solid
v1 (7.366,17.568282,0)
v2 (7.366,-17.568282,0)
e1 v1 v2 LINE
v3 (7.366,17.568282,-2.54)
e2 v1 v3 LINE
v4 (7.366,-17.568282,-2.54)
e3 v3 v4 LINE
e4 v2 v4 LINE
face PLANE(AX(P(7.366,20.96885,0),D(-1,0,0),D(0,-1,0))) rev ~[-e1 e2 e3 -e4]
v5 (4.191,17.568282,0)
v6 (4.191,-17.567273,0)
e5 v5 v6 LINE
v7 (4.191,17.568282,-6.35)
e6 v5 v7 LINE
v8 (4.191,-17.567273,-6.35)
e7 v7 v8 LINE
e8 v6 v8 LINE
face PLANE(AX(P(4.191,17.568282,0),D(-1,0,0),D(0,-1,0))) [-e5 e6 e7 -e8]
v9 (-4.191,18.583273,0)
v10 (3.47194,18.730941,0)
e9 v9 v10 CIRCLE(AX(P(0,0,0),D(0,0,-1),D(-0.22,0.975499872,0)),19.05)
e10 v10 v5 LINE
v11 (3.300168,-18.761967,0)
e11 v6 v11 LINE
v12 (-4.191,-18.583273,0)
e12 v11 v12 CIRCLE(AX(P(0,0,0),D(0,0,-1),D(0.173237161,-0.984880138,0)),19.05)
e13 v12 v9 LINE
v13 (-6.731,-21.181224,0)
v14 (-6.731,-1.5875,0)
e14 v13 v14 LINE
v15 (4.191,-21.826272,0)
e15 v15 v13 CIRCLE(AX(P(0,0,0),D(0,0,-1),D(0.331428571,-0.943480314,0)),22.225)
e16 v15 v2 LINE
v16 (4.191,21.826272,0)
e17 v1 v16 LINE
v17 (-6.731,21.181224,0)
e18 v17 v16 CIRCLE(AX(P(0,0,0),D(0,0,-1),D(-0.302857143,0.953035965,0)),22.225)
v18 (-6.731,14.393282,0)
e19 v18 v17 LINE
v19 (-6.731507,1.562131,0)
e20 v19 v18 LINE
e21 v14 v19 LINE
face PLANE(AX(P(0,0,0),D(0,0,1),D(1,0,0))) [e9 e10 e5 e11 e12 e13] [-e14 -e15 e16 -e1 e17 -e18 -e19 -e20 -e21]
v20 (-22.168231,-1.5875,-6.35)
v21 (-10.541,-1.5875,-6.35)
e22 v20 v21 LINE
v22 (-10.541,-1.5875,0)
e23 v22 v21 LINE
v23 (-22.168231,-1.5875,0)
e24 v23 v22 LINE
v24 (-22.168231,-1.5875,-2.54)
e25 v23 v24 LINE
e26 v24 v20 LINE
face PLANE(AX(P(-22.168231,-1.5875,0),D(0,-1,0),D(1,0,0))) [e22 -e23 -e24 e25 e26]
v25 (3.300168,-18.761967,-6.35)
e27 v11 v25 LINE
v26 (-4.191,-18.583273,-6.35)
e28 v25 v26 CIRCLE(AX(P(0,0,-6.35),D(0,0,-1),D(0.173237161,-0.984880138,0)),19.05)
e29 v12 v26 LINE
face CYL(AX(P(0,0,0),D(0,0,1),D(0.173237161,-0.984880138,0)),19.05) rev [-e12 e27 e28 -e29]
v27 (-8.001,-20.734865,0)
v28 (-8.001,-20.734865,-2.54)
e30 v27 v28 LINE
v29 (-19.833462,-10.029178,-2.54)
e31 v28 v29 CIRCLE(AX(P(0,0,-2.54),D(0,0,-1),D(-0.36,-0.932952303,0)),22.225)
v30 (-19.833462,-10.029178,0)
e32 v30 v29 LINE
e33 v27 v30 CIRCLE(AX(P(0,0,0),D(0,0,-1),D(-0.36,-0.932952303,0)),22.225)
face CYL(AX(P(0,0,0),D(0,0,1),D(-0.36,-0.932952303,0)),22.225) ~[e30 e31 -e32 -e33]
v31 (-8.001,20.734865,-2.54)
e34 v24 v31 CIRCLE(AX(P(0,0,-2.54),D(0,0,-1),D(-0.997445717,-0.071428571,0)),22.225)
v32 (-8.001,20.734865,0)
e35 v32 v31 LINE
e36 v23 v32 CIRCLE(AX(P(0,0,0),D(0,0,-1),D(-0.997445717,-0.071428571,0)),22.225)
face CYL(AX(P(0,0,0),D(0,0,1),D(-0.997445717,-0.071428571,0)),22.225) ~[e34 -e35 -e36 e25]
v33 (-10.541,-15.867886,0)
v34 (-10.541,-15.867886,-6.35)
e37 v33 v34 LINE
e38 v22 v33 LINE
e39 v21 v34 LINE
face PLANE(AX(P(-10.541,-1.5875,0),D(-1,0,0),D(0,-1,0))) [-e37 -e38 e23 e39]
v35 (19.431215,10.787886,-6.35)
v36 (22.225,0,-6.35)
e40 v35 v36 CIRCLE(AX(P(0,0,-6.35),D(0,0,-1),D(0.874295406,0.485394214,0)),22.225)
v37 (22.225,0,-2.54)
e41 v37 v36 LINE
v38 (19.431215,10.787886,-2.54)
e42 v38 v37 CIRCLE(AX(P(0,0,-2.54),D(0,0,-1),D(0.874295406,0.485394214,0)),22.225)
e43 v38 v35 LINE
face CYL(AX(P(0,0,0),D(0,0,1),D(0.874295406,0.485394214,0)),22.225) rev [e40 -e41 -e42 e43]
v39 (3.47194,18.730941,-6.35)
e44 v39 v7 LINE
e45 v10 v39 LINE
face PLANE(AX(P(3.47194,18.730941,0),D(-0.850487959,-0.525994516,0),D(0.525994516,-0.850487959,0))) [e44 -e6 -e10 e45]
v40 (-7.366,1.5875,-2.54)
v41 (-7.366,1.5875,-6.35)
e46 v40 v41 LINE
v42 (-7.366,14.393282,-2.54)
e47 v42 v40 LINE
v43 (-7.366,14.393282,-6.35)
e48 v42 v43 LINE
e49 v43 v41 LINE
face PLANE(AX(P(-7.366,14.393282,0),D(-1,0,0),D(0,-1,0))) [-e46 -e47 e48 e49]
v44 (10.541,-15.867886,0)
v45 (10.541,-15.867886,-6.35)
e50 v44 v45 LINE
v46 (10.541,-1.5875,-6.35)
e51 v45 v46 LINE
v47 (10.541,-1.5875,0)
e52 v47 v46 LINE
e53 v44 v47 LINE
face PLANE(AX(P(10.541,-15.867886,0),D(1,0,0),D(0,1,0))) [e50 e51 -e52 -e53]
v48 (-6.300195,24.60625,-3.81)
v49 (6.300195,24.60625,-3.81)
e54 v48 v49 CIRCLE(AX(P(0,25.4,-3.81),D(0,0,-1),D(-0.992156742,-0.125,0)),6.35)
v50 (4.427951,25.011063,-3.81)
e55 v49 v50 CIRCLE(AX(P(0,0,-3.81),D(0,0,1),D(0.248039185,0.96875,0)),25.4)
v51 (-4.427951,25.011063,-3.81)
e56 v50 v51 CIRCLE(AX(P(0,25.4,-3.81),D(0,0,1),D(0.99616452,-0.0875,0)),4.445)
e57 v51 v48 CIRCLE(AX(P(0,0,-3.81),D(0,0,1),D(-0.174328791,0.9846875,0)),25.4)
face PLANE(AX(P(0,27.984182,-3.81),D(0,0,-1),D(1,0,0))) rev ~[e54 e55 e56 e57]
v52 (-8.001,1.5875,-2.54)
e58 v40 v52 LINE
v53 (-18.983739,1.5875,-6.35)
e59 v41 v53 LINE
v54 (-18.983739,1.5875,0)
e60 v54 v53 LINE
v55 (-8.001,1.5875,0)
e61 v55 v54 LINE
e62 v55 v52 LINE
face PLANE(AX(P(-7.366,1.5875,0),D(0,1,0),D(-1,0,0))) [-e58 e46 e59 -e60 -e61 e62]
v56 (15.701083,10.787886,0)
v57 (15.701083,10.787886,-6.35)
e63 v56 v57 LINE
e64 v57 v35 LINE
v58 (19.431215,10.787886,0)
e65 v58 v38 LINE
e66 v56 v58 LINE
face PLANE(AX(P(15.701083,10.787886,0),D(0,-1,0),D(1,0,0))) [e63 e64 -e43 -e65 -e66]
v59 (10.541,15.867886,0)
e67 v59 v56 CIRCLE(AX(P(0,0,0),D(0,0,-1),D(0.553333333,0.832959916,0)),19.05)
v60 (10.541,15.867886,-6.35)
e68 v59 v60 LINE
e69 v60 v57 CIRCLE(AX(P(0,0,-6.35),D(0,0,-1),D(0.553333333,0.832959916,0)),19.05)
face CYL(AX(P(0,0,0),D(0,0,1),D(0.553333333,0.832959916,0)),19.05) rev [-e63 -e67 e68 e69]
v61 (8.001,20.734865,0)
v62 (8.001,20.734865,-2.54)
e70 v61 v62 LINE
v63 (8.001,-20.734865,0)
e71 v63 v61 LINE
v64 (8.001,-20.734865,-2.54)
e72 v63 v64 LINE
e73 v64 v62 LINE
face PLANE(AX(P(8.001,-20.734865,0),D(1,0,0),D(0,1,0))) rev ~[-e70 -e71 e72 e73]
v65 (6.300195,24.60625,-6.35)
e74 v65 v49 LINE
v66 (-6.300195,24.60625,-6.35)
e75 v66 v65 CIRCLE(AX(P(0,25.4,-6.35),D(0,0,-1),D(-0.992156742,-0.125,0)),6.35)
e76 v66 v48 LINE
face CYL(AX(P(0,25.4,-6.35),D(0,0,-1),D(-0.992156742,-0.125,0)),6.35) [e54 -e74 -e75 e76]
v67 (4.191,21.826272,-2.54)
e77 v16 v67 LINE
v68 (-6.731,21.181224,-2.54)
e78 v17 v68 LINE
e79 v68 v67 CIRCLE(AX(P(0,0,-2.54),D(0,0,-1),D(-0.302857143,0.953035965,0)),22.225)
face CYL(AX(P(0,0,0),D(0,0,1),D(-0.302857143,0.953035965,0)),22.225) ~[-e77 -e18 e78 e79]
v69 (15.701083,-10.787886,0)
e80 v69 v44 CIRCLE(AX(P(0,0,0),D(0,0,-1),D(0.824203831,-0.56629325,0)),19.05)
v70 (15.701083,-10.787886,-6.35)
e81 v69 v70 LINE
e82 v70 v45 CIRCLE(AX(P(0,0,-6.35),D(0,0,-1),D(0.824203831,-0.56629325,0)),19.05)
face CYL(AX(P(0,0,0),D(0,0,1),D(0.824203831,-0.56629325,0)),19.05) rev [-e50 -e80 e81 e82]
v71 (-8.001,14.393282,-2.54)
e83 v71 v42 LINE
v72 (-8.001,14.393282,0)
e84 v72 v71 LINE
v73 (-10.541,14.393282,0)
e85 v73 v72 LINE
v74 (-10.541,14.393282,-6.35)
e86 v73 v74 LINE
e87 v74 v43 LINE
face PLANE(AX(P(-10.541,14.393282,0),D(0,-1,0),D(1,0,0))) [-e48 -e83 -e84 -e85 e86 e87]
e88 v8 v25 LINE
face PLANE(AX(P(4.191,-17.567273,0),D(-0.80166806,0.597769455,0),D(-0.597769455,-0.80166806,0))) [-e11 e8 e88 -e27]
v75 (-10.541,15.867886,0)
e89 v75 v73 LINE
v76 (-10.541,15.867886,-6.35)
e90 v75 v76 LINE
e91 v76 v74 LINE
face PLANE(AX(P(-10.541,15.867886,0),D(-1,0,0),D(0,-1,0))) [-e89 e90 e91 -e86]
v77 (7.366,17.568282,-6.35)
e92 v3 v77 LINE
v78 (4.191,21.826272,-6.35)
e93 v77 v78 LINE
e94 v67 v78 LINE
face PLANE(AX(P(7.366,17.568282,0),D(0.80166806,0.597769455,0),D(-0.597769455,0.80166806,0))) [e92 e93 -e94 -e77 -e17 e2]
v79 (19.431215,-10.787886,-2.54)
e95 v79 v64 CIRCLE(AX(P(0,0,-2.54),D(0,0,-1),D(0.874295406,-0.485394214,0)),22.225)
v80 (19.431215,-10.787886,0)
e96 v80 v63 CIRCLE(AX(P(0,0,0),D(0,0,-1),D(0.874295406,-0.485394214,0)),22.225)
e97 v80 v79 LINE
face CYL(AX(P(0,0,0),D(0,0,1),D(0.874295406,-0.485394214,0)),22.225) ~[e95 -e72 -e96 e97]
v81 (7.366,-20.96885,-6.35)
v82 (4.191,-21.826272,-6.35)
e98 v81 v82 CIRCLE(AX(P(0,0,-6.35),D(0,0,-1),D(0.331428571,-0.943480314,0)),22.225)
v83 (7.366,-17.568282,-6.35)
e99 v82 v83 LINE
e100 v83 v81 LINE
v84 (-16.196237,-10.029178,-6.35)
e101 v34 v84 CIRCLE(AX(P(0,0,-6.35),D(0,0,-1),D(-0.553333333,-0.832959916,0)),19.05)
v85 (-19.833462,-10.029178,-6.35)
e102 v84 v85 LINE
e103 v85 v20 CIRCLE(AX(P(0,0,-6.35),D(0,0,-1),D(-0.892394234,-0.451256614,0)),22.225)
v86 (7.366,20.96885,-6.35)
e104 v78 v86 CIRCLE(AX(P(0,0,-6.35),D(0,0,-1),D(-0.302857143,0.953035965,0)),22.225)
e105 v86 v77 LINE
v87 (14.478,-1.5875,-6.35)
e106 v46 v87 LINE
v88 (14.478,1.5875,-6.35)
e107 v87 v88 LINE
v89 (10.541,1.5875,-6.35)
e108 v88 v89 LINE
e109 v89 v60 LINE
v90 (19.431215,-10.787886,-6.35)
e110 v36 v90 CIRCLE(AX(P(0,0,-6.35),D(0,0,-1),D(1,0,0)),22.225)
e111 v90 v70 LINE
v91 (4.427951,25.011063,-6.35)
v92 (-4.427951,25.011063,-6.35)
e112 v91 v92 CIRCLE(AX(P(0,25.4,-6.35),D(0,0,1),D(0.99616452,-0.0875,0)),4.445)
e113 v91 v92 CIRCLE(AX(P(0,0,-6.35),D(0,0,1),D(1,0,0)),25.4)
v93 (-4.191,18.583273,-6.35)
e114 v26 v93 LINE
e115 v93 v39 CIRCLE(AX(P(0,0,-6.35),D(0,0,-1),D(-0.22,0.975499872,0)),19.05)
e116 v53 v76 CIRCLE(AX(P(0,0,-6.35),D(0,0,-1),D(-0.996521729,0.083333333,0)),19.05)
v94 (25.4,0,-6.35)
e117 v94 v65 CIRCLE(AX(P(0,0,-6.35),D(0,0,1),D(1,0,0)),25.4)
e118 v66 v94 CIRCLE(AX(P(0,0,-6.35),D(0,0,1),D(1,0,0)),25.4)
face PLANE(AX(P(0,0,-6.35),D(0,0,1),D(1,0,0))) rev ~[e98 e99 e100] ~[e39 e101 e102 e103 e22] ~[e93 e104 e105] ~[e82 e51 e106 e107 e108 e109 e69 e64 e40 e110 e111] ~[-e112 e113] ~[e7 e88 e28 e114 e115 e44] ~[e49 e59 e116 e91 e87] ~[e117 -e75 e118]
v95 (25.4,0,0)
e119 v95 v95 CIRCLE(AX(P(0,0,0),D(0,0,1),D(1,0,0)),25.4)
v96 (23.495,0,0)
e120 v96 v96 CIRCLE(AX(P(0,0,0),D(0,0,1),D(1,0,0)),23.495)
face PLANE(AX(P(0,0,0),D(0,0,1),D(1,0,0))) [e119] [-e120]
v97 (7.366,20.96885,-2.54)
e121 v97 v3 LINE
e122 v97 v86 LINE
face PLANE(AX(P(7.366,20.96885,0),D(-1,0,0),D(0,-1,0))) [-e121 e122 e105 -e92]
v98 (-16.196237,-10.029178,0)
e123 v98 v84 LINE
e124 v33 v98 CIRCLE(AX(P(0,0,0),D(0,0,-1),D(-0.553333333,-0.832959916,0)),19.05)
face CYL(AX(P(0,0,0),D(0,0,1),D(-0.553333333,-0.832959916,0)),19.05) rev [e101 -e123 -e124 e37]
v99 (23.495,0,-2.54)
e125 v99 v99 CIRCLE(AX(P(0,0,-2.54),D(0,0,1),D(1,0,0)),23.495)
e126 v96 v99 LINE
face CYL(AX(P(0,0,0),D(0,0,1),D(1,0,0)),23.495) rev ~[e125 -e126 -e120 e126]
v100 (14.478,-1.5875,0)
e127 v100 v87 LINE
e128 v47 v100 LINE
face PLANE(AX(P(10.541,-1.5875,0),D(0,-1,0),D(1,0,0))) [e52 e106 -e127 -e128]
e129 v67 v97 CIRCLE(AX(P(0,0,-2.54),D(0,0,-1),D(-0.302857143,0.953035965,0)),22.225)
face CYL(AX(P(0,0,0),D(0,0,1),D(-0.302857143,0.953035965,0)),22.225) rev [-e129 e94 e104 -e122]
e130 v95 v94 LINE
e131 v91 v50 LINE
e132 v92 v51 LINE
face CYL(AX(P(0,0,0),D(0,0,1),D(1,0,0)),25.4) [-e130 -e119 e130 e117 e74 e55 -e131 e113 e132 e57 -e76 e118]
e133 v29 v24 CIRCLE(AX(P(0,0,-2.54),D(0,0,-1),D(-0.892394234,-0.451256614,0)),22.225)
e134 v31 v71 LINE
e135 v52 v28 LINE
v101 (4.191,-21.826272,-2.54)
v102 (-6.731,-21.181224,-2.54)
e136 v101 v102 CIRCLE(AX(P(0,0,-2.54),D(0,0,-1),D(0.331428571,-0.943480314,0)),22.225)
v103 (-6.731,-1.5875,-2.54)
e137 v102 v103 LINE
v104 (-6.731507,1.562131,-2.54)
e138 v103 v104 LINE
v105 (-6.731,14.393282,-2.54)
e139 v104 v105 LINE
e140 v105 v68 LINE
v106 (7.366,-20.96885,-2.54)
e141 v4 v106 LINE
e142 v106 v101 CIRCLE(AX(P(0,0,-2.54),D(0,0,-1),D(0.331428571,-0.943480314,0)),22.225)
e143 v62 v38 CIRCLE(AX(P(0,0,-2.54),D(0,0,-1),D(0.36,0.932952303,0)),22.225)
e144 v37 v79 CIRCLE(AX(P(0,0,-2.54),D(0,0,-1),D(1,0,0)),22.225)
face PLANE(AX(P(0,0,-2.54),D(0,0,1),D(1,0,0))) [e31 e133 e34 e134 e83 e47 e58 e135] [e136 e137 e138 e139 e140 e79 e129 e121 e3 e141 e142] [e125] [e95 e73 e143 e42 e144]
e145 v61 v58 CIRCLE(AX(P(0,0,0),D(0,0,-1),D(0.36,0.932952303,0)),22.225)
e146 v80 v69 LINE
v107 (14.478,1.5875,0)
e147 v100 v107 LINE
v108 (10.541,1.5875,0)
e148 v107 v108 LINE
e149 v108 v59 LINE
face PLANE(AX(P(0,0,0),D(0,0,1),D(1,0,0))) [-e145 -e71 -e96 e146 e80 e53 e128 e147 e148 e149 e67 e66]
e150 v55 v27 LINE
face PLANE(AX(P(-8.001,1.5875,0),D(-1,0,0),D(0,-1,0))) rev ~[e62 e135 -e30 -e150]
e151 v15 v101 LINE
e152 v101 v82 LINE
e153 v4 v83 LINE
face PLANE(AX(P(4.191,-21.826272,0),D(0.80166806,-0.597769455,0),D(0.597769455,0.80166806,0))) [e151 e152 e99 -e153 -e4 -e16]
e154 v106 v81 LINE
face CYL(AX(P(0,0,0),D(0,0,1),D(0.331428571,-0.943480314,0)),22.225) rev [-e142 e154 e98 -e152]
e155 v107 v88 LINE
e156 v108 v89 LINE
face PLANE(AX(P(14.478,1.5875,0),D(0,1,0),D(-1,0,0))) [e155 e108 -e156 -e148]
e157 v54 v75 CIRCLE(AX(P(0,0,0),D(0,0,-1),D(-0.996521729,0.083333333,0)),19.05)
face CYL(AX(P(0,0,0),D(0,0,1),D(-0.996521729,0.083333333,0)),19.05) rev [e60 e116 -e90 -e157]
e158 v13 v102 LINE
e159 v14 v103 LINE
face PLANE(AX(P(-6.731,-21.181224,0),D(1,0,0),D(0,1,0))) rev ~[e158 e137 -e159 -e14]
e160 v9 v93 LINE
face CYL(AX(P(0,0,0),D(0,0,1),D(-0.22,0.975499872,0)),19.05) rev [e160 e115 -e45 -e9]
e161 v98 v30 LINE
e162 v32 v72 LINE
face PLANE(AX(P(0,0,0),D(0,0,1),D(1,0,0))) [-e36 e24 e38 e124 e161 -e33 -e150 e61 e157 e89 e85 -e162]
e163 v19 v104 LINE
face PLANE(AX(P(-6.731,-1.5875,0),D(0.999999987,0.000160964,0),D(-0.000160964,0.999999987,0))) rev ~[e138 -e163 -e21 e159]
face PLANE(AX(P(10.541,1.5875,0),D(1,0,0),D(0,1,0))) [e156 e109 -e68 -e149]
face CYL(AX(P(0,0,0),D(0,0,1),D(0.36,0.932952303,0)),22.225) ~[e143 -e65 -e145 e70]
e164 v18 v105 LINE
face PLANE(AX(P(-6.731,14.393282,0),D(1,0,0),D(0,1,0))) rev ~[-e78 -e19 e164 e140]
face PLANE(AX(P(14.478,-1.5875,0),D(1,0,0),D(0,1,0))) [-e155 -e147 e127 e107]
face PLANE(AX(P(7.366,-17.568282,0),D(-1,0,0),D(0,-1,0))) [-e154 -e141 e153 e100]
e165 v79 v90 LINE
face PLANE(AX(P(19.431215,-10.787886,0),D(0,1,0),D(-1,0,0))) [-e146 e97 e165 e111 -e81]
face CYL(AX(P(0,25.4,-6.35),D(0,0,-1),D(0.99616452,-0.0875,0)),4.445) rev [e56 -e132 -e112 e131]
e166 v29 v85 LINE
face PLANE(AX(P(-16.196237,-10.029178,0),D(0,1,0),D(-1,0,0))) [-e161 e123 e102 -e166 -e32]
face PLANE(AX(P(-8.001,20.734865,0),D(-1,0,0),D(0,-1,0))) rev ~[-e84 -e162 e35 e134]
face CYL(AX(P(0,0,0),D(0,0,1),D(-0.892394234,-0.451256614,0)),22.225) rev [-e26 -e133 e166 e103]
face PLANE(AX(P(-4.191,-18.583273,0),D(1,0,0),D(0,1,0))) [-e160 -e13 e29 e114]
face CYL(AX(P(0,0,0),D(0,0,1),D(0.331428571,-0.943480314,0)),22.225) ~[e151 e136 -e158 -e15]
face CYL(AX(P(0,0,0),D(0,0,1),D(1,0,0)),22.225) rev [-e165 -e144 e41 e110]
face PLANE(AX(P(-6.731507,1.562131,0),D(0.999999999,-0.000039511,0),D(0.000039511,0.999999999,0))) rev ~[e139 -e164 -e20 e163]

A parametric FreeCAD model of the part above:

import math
import FreeCAD as App
import Part
import Sketcher
Q = App.Units.Quantity

doc = App.newDocument("Part")
params = doc.addObject("Spreadsheet::Sheet", "Params")
for row, (alias, value) in enumerate([
    ("sketch1_diameter", "2 in"),
    ("sketch1_radius", "0.75 in"),
    ("sketch1_radius2", "0.875 in"),
    ("sketch1_width", "0.125 in"),
    ("sketch1_width2", "0.155 in"),
    ("pad1_length", "0.25 in"),
    ("sketch2_diameter", "1.85 in"),
    ("sketch2_radius", "0.875 in"),
    ("sketch2_width", "0.025 in"),
    ("pocket1_length", "0.1 in"),
    ("sketch3_radius", "1 in"),
    ("sketch3_radius2", "0.25 in"),
    ("sketch3_radius3", "0.175 in"),
    ("pad2_length", "0.1 in"),
], start=1):
    params.set(f"A{row}", alias)
    params.set(f"B{row}", "=" + value)
    params.setAlias(f"B{row}", alias)

body = doc.addObject("PartDesign::Body", "Body")

sketch1 = body.newObject("Sketcher::SketchObject", "Sketch")
sketch1.AttachmentSupport = (doc.getObject("XY_Plane"), [""])
sketch1.MapMode = "FlatFace"
sketch1.addGeometry([
    Part.Circle(App.Vector(0, 0, 0), App.Vector(0, 0, 1), 25.4),
    Part.ArcOfCircle(Part.Circle(App.Vector(0, 0, 0), App.Vector(0, 0, 1), 19.1), math.radians(124), math.radians(175)),
    Part.LineSegment(App.Vector(-10.5, 15.9, 0), App.Vector(-10.5, 14.4, 0)),
    Part.LineSegment(App.Vector(-10.5, 14.4, 0), App.Vector(-7.4, 14.4, 0)),
    Part.LineSegment(App.Vector(-7.4, 14.4, 0), App.Vector(-7.4, 1.6, 0)),
    Part.LineSegment(App.Vector(-7.4, 1.6, 0), App.Vector(-19, 1.6, 0)),
    Part.ArcOfCircle(Part.Circle(App.Vector(0, 0, 0), App.Vector(0, 0, 1), 22.2), math.radians(-176), math.radians(-153)),
    Part.LineSegment(App.Vector(-22.2, -1.6, 0), App.Vector(-10.5, -1.6, 0)),
    Part.LineSegment(App.Vector(-10.5, -1.6, 0), App.Vector(-10.5, -15.9, 0)),
    Part.ArcOfCircle(Part.Circle(App.Vector(0, 0, 0), App.Vector(0, 0, 1), 19.1), math.radians(-148), math.radians(-124)),
    Part.LineSegment(App.Vector(-16.2, -10, 0), App.Vector(-19.8, -10, 0)),
    Part.LineSegment(App.Vector(-4.2, -18.6, 0), App.Vector(-4.2, 18.6, 0)),
    Part.ArcOfCircle(Part.Circle(App.Vector(0, 0, 0), App.Vector(0, 0, 1), 19), math.radians(79), math.radians(103)),
    Part.LineSegment(App.Vector(3.5, 18.7, 0), App.Vector(4.2, 17.6, 0)),
    Part.LineSegment(App.Vector(4.2, 17.6, 0), App.Vector(4.2, -17.6, 0)),
    Part.LineSegment(App.Vector(4.2, -17.6, 0), App.Vector(3.3, -18.8, 0)),
    Part.ArcOfCircle(Part.Circle(App.Vector(0, 0, 0), App.Vector(0, 0, 1), 19), math.radians(-103), math.radians(-80)),
    Part.ArcOfCircle(Part.Circle(App.Vector(0, 0, 0), App.Vector(0, 0, 1), 22.2), math.radians(0), math.radians(29)),
    Part.ArcOfCircle(Part.Circle(App.Vector(0, 0, 0), App.Vector(0, 0, 1), 22.2), math.radians(-29), math.radians(0)),
    Part.LineSegment(App.Vector(19.4, -10.8, 0), App.Vector(15.7, -10.8, 0)),
    Part.ArcOfCircle(Part.Circle(App.Vector(0, 0, 0), App.Vector(0, 0, 1), 19.1), math.radians(-56), math.radians(-34)),
    Part.LineSegment(App.Vector(10.5, -15.9, 0), App.Vector(10.5, -1.6, 0)),
    Part.LineSegment(App.Vector(10.5, -1.6, 0), App.Vector(14.5, -1.6, 0)),
    Part.LineSegment(App.Vector(14.5, -1.6, 0), App.Vector(14.5, 1.6, 0)),
    Part.LineSegment(App.Vector(14.5, 1.6, 0), App.Vector(10.5, 1.6, 0)),
    Part.LineSegment(App.Vector(10.5, 1.6, 0), App.Vector(10.5, 15.9, 0)),
    Part.ArcOfCircle(Part.Circle(App.Vector(0, 0, 0), App.Vector(0, 0, 1), 19.1), math.radians(34), math.radians(56)),
    Part.LineSegment(App.Vector(15.7, 10.8, 0), App.Vector(19.4, 10.8, 0)),
    Part.ArcOfCircle(Part.Circle(App.Vector(0, 0, 0), App.Vector(0, 0, 1), 22.2), math.radians(-79.13), math.radians(-70.64)),
    Part.LineSegment(App.Vector(4.2, -21.8, 0), App.Vector(7.4, -17.6, 0)),
    Part.LineSegment(App.Vector(7.4, -17.6, 0), App.Vector(7.4, -21, 0)),
    Part.LineSegment(App.Vector(7.4, 17.6, 0), App.Vector(4.2, 21.8, 0)),
    Part.ArcOfCircle(Part.Circle(App.Vector(0, 0, 0), App.Vector(0, 0, 1), 22.2), math.radians(70.64), math.radians(79.13)),
    Part.LineSegment(App.Vector(7.4, 21, 0), App.Vector(7.4, 17.6, 0)),
], False)
sketch1.addConstraint([
    Sketcher.Constraint("Coincident", 1, 1, 2, 1),
    Sketcher.Constraint("Coincident", 2, 2, 3, 1),
    Sketcher.Constraint("Coincident", 3, 2, 4, 1),
    Sketcher.Constraint("Coincident", 4, 2, 5, 1),
    Sketcher.Constraint("Coincident", 5, 2, 1, 2),
    Sketcher.Constraint("Coincident", 6, 1, 7, 1),
    Sketcher.Constraint("Coincident", 7, 2, 8, 1),
    Sketcher.Constraint("Coincident", 8, 2, 9, 2),
    Sketcher.Constraint("Coincident", 9, 1, 10, 1),
    Sketcher.Constraint("Coincident", 10, 2, 6, 2),
    Sketcher.Constraint("Coincident", 11, 2, 12, 2),
    Sketcher.Constraint("Coincident", 12, 1, 13, 1),
    Sketcher.Constraint("Coincident", 13, 2, 14, 1),
    Sketcher.Constraint("Coincident", 14, 2, 15, 1),
    Sketcher.Constraint("Coincident", 15, 2, 16, 2),
    Sketcher.Constraint("Coincident", 16, 1, 11, 1),
    Sketcher.Constraint("Tangent", 17, 1, 18, 2),
    Sketcher.Constraint("Coincident", 18, 1, 19, 1),
    Sketcher.Constraint("Coincident", 19, 2, 20, 2),
    Sketcher.Constraint("Coincident", 20, 1, 21, 1),
    Sketcher.Constraint("Coincident", 21, 2, 22, 1),
    Sketcher.Constraint("Coincident", 22, 2, 23, 1),
    Sketcher.Constraint("Coincident", 23, 2, 24, 1),
    Sketcher.Constraint("Coincident", 24, 2, 25, 1),
    Sketcher.Constraint("Coincident", 25, 2, 26, 2),
    Sketcher.Constraint("Coincident", 26, 1, 27, 1),
    Sketcher.Constraint("Coincident", 27, 2, 17, 2),
    Sketcher.Constraint("Coincident", 28, 1, 29, 1),
    Sketcher.Constraint("Coincident", 29, 2, 30, 1),
    Sketcher.Constraint("Coincident", 30, 2, 28, 2),
    Sketcher.Constraint("Coincident", 31, 2, 32, 2),
    Sketcher.Constraint("Coincident", 32, 1, 33, 1),
    Sketcher.Constraint("Coincident", 33, 2, 31, 1),
    Sketcher.Constraint("Vertical", 2),
    Sketcher.Constraint("Horizontal", 3),
    Sketcher.Constraint("Vertical", 4),
    Sketcher.Constraint("Horizontal", 5),
    Sketcher.Constraint("Horizontal", 7),
    Sketcher.Constraint("Vertical", 8),
    Sketcher.Constraint("Horizontal", 10),
    Sketcher.Constraint("Vertical", 11),
    Sketcher.Constraint("Vertical", 14),
    Sketcher.Constraint("Horizontal", 19),
    Sketcher.Constraint("Vertical", 21),
    Sketcher.Constraint("Horizontal", 22),
    Sketcher.Constraint("Vertical", 23),
    Sketcher.Constraint("Horizontal", 24),
    Sketcher.Constraint("Vertical", 25),
    Sketcher.Constraint("Horizontal", 27),
    Sketcher.Constraint("Vertical", 30),
    Sketcher.Constraint("Vertical", 33),
    Sketcher.Constraint("Coincident", 0, 3, -1, 1),
    Sketcher.Constraint("Coincident", 1, 3, -1, 1),
    Sketcher.Constraint("Coincident", 6, 3, -1, 1),
    Sketcher.Constraint("Coincident", 9, 3, -1, 1),
    Sketcher.Constraint("Coincident", 12, 3, -1, 1),
    Sketcher.Constraint("Coincident", 16, 3, -1, 1),
    Sketcher.Constraint("Coincident", 17, 3, -1, 1),
    Sketcher.Constraint("Coincident", 20, 3, -1, 1),
    Sketcher.Constraint("Coincident", 26, 3, -1, 1),
    Sketcher.Constraint("Coincident", 28, 3, -1, 1),
    Sketcher.Constraint("Coincident", 32, 3, -1, 1),
    Sketcher.Constraint("Equal", 1, 9),
    Sketcher.Constraint("Equal", 9, 12),
    Sketcher.Constraint("Equal", 12, 16),
    Sketcher.Constraint("Equal", 6, 17),
    Sketcher.Constraint("Equal", 17, 18),
    Sketcher.Constraint("Equal", 16, 20),
    Sketcher.Constraint("Equal", 20, 26),
    Sketcher.Constraint("Equal", 18, 28),
    Sketcher.Constraint("Equal", 28, 32),
    Sketcher.Constraint("Symmetric", 7, 2, 24, 2, -1, 1),
    Sketcher.Constraint("Symmetric", 7, 2, 21, 2, -2),
    Sketcher.Constraint("Symmetric", 29, 2, 33, 2, -1),
    Sketcher.Constraint("PointOnObject", 17, 1, -1),
    Sketcher.Constraint("Parallel", 15, 29),
    Sketcher.Constraint("Horizontal", 5, 2, 23, 2),
    Sketcher.Constraint("Horizontal", 1, 1, 25, 2),
    Sketcher.Constraint("Horizontal", 13, 2, 33, 2),
    Sketcher.Constraint("Vertical", 19, 2, 26, 1),
    Sketcher.Constraint("Vertical", 14, 2, 28, 1),
    Sketcher.Constraint("Vertical", 28, 1, 31, 2),
    Sketcher.Constraint("Equal", 3, 23),
    Sketcher.Constraint("Diameter", 0, Q("2 in")),
    Sketcher.Constraint("Radius", 1, Q("0.75 in")),
    Sketcher.Constraint("Radius", 6, Q("0.875 in")),
    Sketcher.Constraint("DistanceY", 20, 1, 19, 2, Q("0.2 in")),
    Sketcher.Constraint("DistanceX", 3, 1, 3, 2, Q("0.125 in")),
    Sketcher.Constraint("DistanceX", 22, 1, 22, 2, Q("0.155 in")),
    Sketcher.Constraint("DistanceX", 3, 2, -1, 1, Q("0.29 in")),
    Sketcher.Constraint("DistanceX", -1, 1, 29, 2, Q("0.29 in")),
    Sketcher.Constraint("DistanceX", 1, 1, 11, 2, Q("0.25 in")),
    Sketcher.Constraint("DistanceX", 11, 2, 13, 2, Q("0.33 in")),
    Sketcher.Constraint("DistanceY", 16, 1, 14, 2, Q("0.04 in")),
    Sketcher.Constraint("DistanceY", 3, 2, 13, 2, Q("0.125 in")),
    Sketcher.Constraint("Distance", 13, Q("1.367048 mm")),
    Sketcher.Constraint("Distance", 15, Q("1.49026 mm")),
    Sketcher.Constraint("DistanceX", 10, 2, 10, 1, Q("3.637225 mm")),
])
sketch1.setExpression("Constraints[83]", "Params.sketch1_diameter")
sketch1.setExpression("Constraints[84]", "Params.sketch1_radius")
sketch1.setExpression("Constraints[85]", "Params.sketch1_radius2")
sketch1.setExpression("Constraints[87]", "Params.sketch1_width")
sketch1.setExpression("Constraints[88]", "Params.sketch1_width2")
pad1 = body.newObject("PartDesign::Pad", "Pad")
pad1.Profile = sketch1
pad1.setExpression("Length", "Params.pad1_length")
pad1.Reversed = True

sketch2 = body.newObject("Sketcher::SketchObject", "Sketch001")
sketch2.AttachmentSupport = (doc.getObject("XY_Plane"), [""])
sketch2.MapMode = "FlatFace"
sketch2.addGeometry([
    Part.Circle(App.Vector(0, 0, 0), App.Vector(0, 0, 1), 23.5),
    Part.ArcOfCircle(Part.Circle(App.Vector(0, 0, 0), App.Vector(0, 0, 1), 22.2), math.radians(29), math.radians(69)),
    Part.ArcOfCircle(Part.Circle(App.Vector(0, 0, 0), App.Vector(0, 0, 1), 22.2), math.radians(0), math.radians(29)),
    Part.ArcOfCircle(Part.Circle(App.Vector(0, 0, 0), App.Vector(0, 0, 1), 22.2), math.radians(-29), math.radians(0)),
    Part.ArcOfCircle(Part.Circle(App.Vector(0, 0, 0), App.Vector(0, 0, 1), 22.2), math.radians(-69), math.radians(-29)),
    Part.LineSegment(App.Vector(8, -20.7, 0), App.Vector(8, 20.7, 0)),
    Part.ArcOfCircle(Part.Circle(App.Vector(0, 0, 0), App.Vector(0, 0, 1), 22.2), math.radians(-108), math.radians(-71)),
    Part.LineSegment(App.Vector(-6.7, -21.2, 0), App.Vector(-6.7, -1.6, 0)),
    Part.LineSegment(App.Vector(-6.7, -1.6, 0), App.Vector(-6.7, 1.6, 0)),
    Part.LineSegment(App.Vector(-6.7, 1.6, 0), App.Vector(-6.7, 14.4, 0)),
    Part.LineSegment(App.Vector(-6.7, 14.4, 0), App.Vector(-6.7, 21.2, 0)),
    Part.ArcOfCircle(Part.Circle(App.Vector(0, 0, 0), App.Vector(0, 0, 1), 22.2), math.radians(71), math.radians(108)),
    Part.LineSegment(App.Vector(7.4, 21, 0), App.Vector(7.4, -21, 0)),
    Part.ArcOfCircle(Part.Circle(App.Vector(0, 0, 0), App.Vector(0, 0, 1), 22.2), math.radians(-153), math.radians(-111)),
    Part.ArcOfCircle(Part.Circle(App.Vector(0, 0, 0), App.Vector(0, 0, 1), 22.2), math.radians(-176), math.radians(-153)),
    Part.ArcOfCircle(Part.Circle(App.Vector(0, 0, 0), App.Vector(0, 0, 1), 22.2), math.radians(111), math.radians(184)),
    Part.LineSegment(App.Vector(-8, 20.7, 0), App.Vector(-8, 14.4, 0)),
    Part.LineSegment(App.Vector(-8, 14.4, 0), App.Vector(-7.4, 14.4, 0)),
    Part.LineSegment(App.Vector(-7.4, 14.4, 0), App.Vector(-7.4, 1.6, 0)),
    Part.LineSegment(App.Vector(-7.4, 1.6, 0), App.Vector(-8, 1.6, 0)),
    Part.LineSegment(App.Vector(-8, 1.6, 0), App.Vector(-8, -20.7, 0)),
], False)
sketch2.addConstraint([
    Sketcher.Constraint("Tangent", 1, 1, 2, 2),
    Sketcher.Constraint("Tangent", 2, 1, 3, 2),
    Sketcher.Constraint("Tangent", 3, 1, 4, 2),
    Sketcher.Constraint("Coincident", 4, 1, 5, 1),
    Sketcher.Constraint("Coincident", 5, 2, 1, 2),
    Sketcher.Constraint("Coincident", 6, 1, 7, 1),
    Sketcher.Constraint("Coincident", 7, 2, 8, 1),
    Sketcher.Constraint("Coincident", 8, 2, 9, 1),
    Sketcher.Constraint("Coincident", 9, 2, 10, 1),
    Sketcher.Constraint("Coincident", 10, 2, 11, 2),
    Sketcher.Constraint("Coincident", 11, 1, 12, 1),
    Sketcher.Constraint("Coincident", 12, 2, 6, 2),
    Sketcher.Constraint("Tangent", 13, 1, 14, 2),
    Sketcher.Constraint("Tangent", 14, 1, 15, 2),
    Sketcher.Constraint("Coincident", 15, 1, 16, 1),
    Sketcher.Constraint("Coincident", 16, 2, 17, 1),
    Sketcher.Constraint("Coincident", 17, 2, 18, 1),
    Sketcher.Constraint("Coincident", 18, 2, 19, 1),
    Sketcher.Constraint("Coincident", 19, 2, 20, 1),
    Sketcher.Constraint("Coincident", 20, 2, 13, 2),
    Sketcher.Constraint("Vertical", 5),
    Sketcher.Constraint("Vertical", 7),
    Sketcher.Constraint("Vertical", 10),
    Sketcher.Constraint("Vertical", 12),
    Sketcher.Constraint("Vertical", 16),
    Sketcher.Constraint("Horizontal", 17),
    Sketcher.Constraint("Vertical", 18),
    Sketcher.Constraint("Horizontal", 19),
    Sketcher.Constraint("Vertical", 20),
    Sketcher.Constraint("Coincident", 0, 3, -1, 1),
    Sketcher.Constraint("Coincident", 1, 3, -1, 1),
    Sketcher.Constraint("Coincident", 3, 3, -1, 1),
    Sketcher.Constraint("Coincident", 6, 3, -1, 1),
    Sketcher.Constraint("Coincident", 11, 3, -1, 1),
    Sketcher.Constraint("Coincident", 13, 3, -1, 1),
    Sketcher.Constraint("Coincident", 15, 3, -1, 1),
    Sketcher.Constraint("Equal", 3, 4),
    Sketcher.Constraint("Equal", 4, 6),
    Sketcher.Constraint("Equal", 6, 11),
    Sketcher.Constraint("Equal", 11, 13),
    Sketcher.Constraint("PointOnObject", 2, 1, -1),
    Sketcher.Constraint("Horizontal", 7, 2, 14, 1),
    Sketcher.Constraint("Horizontal", 5, 2, 15, 1),
    Sketcher.Constraint("Horizontal", 9, 2, 16, 2),
    Sketcher.Constraint("Horizontal", 4, 1, 20, 2),
    Sketcher.Constraint("Vertical", 1, 1, 3, 1),
    Sketcher.Constraint("Vertical", 7, 2, 9, 2),
    Sketcher.Constraint("Diameter", 0, Q("1.85 in")),
    Sketcher.Constraint("Radius", 1, Q("0.875 in")),
    Sketcher.Constraint("DistanceX", 17, 1, 17, 2, Q("0.025 in")),
    Sketcher.Constraint("DistanceX", -1, 1, 11, 1, Q("0.29 in")),
    Sketcher.Constraint("DistanceX", 17, 2, -1, 1, Q("0.29 in")),
    Sketcher.Constraint("DistanceX", 6, 1, 4, 1, Q("0.58 in")),
    Sketcher.Constraint("DistanceY", 7, 2, -1, 1, Q("0.0625 in")),
    Sketcher.Constraint("DistanceY", -1, 1, 18, 2, Q("0.0625 in")),
    Sketcher.Constraint("DistanceY", 10, 1, 10, 2, Q("6.787942 mm")),
    Sketcher.Constraint("Distance", 8, Q("3.149631 mm")),
    Sketcher.Constraint("DistanceX", 13, 1, -1, 1, Q("19.833462 mm")),
    Sketcher.Constraint("DistanceY", 4, 1, 3, 1, Q("9.946979 mm")),
    Sketcher.Constraint("DistanceX", 8, 2, -1, 1, Q("6.731507 mm")),
])
sketch2.setExpression("Constraints[47]", "Params.sketch2_diameter")
sketch2.setExpression("Constraints[48]", "Params.sketch2_radius")
sketch2.setExpression("Constraints[49]", "Params.sketch2_width")
pocket1 = body.newObject("PartDesign::Pocket", "Pocket")
pocket1.Profile = sketch2
pocket1.setExpression("Length", "Params.pocket1_length")

sketch3 = body.newObject("Sketcher::SketchObject", "Sketch002")
sketch3.AttachmentSupport = (doc.getObject("XY_Plane"), [""])
sketch3.MapMode = "FlatFace"
sketch3.AttachmentOffset = App.Placement(App.Vector(0, 0, -0.25 * 25.4), App.Rotation())
sketch3.addGeometry([
    Part.ArcOfCircle(Part.Circle(App.Vector(0, 0, 0), App.Vector(0, 0, 1), 25.4), math.radians(100.04), math.radians(104.36)),
    Part.ArcOfCircle(Part.Circle(App.Vector(0, 25.4, 0), App.Vector(0, 0, 1), 6.3), math.radians(-7), math.radians(187)),
    Part.ArcOfCircle(Part.Circle(App.Vector(0, 0, 0), App.Vector(0, 0, 1), 25.4), math.radians(75.64), math.radians(79.96)),
    Part.ArcOfCircle(Part.Circle(App.Vector(0, 25.4, 0), App.Vector(0, 0, 1), 4.4), math.radians(-5), math.radians(185)),
], False)
sketch3.addConstraint([
    Sketcher.Constraint("Coincident", 0, 2, 1, 2),
    Sketcher.Constraint("Coincident", 1, 1, 2, 1),
    Sketcher.Constraint("Coincident", 2, 2, 3, 1),
    Sketcher.Constraint("Coincident", 3, 2, 0, 1),
    Sketcher.Constraint("Coincident", 0, 3, -1, 1),
    Sketcher.Constraint("Coincident", 2, 3, -1, 1),
    Sketcher.Constraint("Coincident", 3, 3, 1, 3),
    Sketcher.Constraint("Equal", 0, 2),
    Sketcher.Constraint("PointOnObject", 1, 3, -2),
    Sketcher.Constraint("Radius", 0, Q("1 in")),
    Sketcher.Constraint("Radius", 1, Q("0.25 in")),
    Sketcher.Constraint("DistanceY", -1, 1, 1, 3, Q("1 in")),
    Sketcher.Constraint("Radius", 3, Q("0.175 in")),
])
sketch3.setExpression("Constraints[9]", "Params.sketch3_radius")
sketch3.setExpression("Constraints[10]", "Params.sketch3_radius2")
sketch3.setExpression("Constraints[12]", "Params.sketch3_radius3")
pad2 = body.newObject("PartDesign::Pad", "Pad001")
pad2.Profile = sketch3
pad2.setExpression("Length", "Params.pad2_length")

doc.recompute()
